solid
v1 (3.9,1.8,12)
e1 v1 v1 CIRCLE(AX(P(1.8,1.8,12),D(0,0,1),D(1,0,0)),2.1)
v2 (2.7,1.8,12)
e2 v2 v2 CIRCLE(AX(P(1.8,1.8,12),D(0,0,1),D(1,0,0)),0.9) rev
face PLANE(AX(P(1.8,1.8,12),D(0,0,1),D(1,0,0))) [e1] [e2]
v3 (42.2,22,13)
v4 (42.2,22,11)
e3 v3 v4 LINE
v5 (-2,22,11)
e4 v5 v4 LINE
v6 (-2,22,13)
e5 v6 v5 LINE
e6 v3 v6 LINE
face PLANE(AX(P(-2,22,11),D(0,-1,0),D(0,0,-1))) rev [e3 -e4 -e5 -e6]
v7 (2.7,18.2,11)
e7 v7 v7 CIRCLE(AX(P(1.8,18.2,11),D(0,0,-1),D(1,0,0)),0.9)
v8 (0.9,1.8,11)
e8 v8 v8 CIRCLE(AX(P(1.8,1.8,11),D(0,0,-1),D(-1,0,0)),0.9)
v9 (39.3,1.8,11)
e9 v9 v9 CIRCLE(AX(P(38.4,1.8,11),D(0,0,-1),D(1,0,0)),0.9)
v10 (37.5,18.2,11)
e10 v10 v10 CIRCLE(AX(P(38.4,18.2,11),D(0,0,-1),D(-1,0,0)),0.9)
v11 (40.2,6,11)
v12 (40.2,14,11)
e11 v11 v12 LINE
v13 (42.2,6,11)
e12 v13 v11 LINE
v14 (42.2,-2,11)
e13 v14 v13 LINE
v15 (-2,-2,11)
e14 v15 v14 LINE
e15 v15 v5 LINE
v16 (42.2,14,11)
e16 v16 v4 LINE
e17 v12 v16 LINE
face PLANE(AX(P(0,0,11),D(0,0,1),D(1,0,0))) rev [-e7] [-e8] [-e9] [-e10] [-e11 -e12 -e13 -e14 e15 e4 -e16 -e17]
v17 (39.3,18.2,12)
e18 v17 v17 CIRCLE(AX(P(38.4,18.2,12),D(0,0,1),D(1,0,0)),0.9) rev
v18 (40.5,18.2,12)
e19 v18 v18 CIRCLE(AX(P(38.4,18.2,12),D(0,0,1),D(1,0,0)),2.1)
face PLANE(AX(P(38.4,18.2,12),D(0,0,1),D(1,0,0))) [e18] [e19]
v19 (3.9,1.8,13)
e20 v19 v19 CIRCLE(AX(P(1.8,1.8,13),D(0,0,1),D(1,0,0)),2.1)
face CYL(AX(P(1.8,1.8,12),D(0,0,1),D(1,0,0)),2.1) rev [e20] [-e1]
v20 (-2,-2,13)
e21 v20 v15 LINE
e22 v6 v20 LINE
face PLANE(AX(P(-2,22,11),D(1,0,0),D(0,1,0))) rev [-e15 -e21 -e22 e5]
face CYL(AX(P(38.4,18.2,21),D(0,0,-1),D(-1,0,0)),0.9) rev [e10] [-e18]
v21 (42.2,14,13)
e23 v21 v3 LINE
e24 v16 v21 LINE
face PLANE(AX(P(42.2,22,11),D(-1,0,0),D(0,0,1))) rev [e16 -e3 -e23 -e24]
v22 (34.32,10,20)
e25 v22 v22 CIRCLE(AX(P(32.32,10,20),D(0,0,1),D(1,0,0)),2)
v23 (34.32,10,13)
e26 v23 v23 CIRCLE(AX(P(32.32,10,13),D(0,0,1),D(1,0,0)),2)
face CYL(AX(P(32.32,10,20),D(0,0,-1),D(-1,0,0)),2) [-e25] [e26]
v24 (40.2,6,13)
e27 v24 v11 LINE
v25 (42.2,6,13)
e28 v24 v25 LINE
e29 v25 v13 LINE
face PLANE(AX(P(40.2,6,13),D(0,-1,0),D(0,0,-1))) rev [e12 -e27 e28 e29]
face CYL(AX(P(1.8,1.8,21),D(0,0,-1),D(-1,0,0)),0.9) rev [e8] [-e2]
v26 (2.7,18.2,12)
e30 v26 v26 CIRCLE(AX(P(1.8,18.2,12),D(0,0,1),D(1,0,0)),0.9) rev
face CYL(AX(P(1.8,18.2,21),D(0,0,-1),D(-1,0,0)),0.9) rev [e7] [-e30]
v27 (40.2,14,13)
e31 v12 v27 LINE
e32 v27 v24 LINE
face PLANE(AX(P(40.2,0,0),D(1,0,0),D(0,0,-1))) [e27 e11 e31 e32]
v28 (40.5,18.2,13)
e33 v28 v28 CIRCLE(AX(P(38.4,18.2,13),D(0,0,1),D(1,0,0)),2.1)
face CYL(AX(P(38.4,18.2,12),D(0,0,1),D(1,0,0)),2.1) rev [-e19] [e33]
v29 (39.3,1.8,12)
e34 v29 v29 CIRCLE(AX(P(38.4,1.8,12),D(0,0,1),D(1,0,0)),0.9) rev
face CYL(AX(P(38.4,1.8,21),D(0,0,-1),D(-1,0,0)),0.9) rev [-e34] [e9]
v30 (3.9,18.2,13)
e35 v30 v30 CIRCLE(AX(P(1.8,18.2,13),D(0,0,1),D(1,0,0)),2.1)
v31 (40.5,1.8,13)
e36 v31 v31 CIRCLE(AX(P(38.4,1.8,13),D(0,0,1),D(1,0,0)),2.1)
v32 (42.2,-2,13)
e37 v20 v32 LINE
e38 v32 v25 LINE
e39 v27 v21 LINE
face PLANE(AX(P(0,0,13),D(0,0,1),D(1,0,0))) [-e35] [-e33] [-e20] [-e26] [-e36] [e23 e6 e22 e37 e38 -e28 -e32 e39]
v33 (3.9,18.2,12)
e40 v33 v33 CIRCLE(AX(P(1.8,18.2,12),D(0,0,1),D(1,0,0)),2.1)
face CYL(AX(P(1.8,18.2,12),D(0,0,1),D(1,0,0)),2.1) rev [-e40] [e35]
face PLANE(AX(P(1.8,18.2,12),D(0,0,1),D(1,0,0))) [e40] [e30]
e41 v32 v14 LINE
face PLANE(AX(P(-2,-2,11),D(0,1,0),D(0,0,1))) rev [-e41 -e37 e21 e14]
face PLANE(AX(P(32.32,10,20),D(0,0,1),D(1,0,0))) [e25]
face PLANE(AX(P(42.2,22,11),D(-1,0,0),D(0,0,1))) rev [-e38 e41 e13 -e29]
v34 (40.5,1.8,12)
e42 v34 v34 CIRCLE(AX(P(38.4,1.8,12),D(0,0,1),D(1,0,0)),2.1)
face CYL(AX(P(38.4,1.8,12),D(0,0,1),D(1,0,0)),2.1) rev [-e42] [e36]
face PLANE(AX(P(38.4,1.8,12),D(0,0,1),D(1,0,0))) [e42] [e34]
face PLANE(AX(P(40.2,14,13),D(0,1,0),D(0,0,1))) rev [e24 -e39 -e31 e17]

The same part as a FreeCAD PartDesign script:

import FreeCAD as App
import Part
import Sketcher
from FreeCAD import Vector

doc = App.newDocument("Part")
body = doc.addObject("PartDesign::Body", "Body")

# Sketch on XY plane
sketch1 = doc.addObject("Sketcher::SketchObject", "Sketch")
body.addObject(sketch1)
sketch1.AttachmentSupport = (doc.XY_Plane, [""])
sketch1.MapMode = "FlatFace"
sketch1.addGeometry([
    Part.LineSegment(Vector(-2, 22, 0), Vector(-2, -2, 0)),  # 0
    Part.LineSegment(Vector(-2, -2, 0), Vector(42, -2, 0)),  # 1
    Part.LineSegment(Vector(42, -2, 0), Vector(42, 22, 0)),  # 2
    Part.LineSegment(Vector(42, 22, 0), Vector(-2, 22, 0)),  # 3
    Part.LineSegment(Vector(40, 0, 0), Vector(0, 0, 0)),  # 4
    Part.LineSegment(Vector(0, 0, 0), Vector(0, 20, 0)),  # 5
    Part.LineSegment(Vector(0, 20, 0), Vector(40, 20, 0)),  # 6
    Part.LineSegment(Vector(40, 20, 0), Vector(40, 0, 0)),  # 7
], False)
sketch1.addConstraint([
    Sketcher.Constraint("Coincident", 0, 2, 1, 1),
    Sketcher.Constraint("Coincident", 1, 2, 2, 1),
    Sketcher.Constraint("Coincident", 2, 2, 3, 1),
    Sketcher.Constraint("Coincident", 3, 2, 0, 1),
    Sketcher.Constraint("Coincident", 4, 2, 5, 1),
    Sketcher.Constraint("Coincident", 5, 2, 6, 1),
    Sketcher.Constraint("Coincident", 6, 2, 7, 1),
    Sketcher.Constraint("Coincident", 7, 2, 4, 1),
    Sketcher.Constraint("Vertical", 0),
    Sketcher.Constraint("Horizontal", 1),
    Sketcher.Constraint("Vertical", 2),
    Sketcher.Constraint("Horizontal", 3),
    Sketcher.Constraint("Horizontal", 4),
    Sketcher.Constraint("Vertical", 5),
    Sketcher.Constraint("Horizontal", 6),
    Sketcher.Constraint("Vertical", 7),
    Sketcher.Constraint("Coincident", 4, 2, -1, 1),
    Sketcher.Constraint("DistanceY", 0, 2, 0, 1, 24.0),
    Sketcher.Constraint("DistanceY", 5, 1, 5, 2, 20.0),
    Sketcher.Constraint("DistanceX", 1, 1, 1, 2, 44.2),
    Sketcher.Constraint("DistanceX", 4, 2, 4, 1, 40.2),
    Sketcher.Constraint("DistanceX", 0, 2, -1, 1, 2.0),
    Sketcher.Constraint("DistanceY", 0, 2, -1, 1, 2.0),
])
pad1 = doc.addObject("PartDesign::Pad", "Pad")
body.addObject(pad1)
pad1.Profile = sketch1
pad1.Length = 11

# Sketch on XY plane
sketch2 = doc.addObject("Sketcher::SketchObject", "Sketch001")
body.addObject(sketch2)
sketch2.AttachmentSupport = (doc.XY_Plane, [""])
sketch2.MapMode = "FlatFace"
sketch2.AttachmentOffset = App.Placement(Vector(0, 0, 11), App.Rotation())
sketch2.addGeometry([
    Part.LineSegment(Vector(-2, 22, 0), Vector(-2, -2, 0)),
    Part.LineSegment(Vector(-2, -2, 0), Vector(42, -2, 0)),
    Part.LineSegment(Vector(42, -2, 0), Vector(42, 22, 0)),
    Part.LineSegment(Vector(42, 22, 0), Vector(-2, 22, 0)),
], False)
sketch2.addConstraint([
    Sketcher.Constraint("Coincident", 0, 2, 1, 1),
    Sketcher.Constraint("Coincident", 1, 2, 2, 1),
    Sketcher.Constraint("Coincident", 2, 2, 3, 1),
    Sketcher.Constraint("Coincident", 3, 2, 0, 1),
    Sketcher.Constraint("Vertical", 0),
    Sketcher.Constraint("Horizontal", 1),
    Sketcher.Constraint("Vertical", 2),
    Sketcher.Constraint("Horizontal", 3),
    Sketcher.Constraint("DistanceY", 0, 2, 0, 1, 24.0),
    Sketcher.Constraint("DistanceX", 1, 1, 1, 2, 44.2),
    Sketcher.Constraint("DistanceX", 0, 2, -1, 1, 2.0),
    Sketcher.Constraint("DistanceY", 0, 2, -1, 1, 2.0),
])
pad2 = doc.addObject("PartDesign::Pad", "Pad001")
body.addObject(pad2)
pad2.Profile = sketch2
pad2.Length = 2

# Sketch on YZ plane
sketch3 = doc.addObject("Sketcher::SketchObject", "Sketch002")
body.addObject(sketch3)
sketch3.AttachmentSupport = (doc.YZ_Plane, [""])
sketch3.MapMode = "FlatFace"
sketch3.AttachmentOffset = App.Placement(Vector(0, 0, 42.2), App.Rotation())
sketch3.addGeometry([
    Part.LineSegment(Vector(14, 13, 0), Vector(6, 13, 0)),
    Part.LineSegment(Vector(6, 13, 0), Vector(6, 2, 0)),
    Part.LineSegment(Vector(6, 2, 0), Vector(14, 2, 0)),
    Part.LineSegment(Vector(14, 2, 0), Vector(14, 13, 0)),
], False)
sketch3.addConstraint([
    Sketcher.Constraint("Coincident", 0, 2, 1, 1),
    Sketcher.Constraint("Coincident", 1, 2, 2, 1),
    Sketcher.Constraint("Coincident", 2, 2, 3, 1),
    Sketcher.Constraint("Coincident", 3, 2, 0, 1),
    Sketcher.Constraint("Horizontal", 0),
    Sketcher.Constraint("Vertical", 1),
    Sketcher.Constraint("Horizontal", 2),
    Sketcher.Constraint("Vertical", 3),
    Sketcher.Constraint("DistanceX", 0, 2, 0, 1, 8.0),
    Sketcher.Constraint("DistanceY", 1, 2, 1, 1, 11.0),
    Sketcher.Constraint("DistanceX", -1, 1, 0, 2, 6.0),
    Sketcher.Constraint("DistanceY", -1, 1, 0, 2, 13.0),
])
pocket1 = doc.addObject("PartDesign::Pocket", "Pocket")
body.addObject(pocket1)
pocket1.Profile = sketch3
pocket1.Length = 2

# Sketch on XY plane
sketch4 = doc.addObject("Sketcher::SketchObject", "Sketch003")
body.addObject(sketch4)
sketch4.AttachmentSupport = (doc.XY_Plane, [""])
sketch4.MapMode = "FlatFace"
sketch4.AttachmentOffset = App.Placement(Vector(0, 0, 13), App.Rotation())
sketch4.addGeometry(Part.Circle(Vector(32.3, 10, 0), Vector(0, 0, 1), 2), False)
sketch4.addConstraint([
    Sketcher.Constraint("Diameter", 0, 4.0),
    Sketcher.Constraint("DistanceY", -1, 1, 0, 3, 10.0),
    Sketcher.Constraint("DistanceX", -1, 1, 0, 3, 32.32),
])
pad3 = doc.addObject("PartDesign::Pad", "Pad002")
body.addObject(pad3)
pad3.Profile = sketch4
pad3.Length = 7

# Sketch on XY plane
sketch5 = doc.addObject("Sketcher::SketchObject", "Sketch004")
body.addObject(sketch5)
sketch5.AttachmentSupport = (doc.XY_Plane, [""])
sketch5.MapMode = "FlatFace"
sketch5.AttachmentOffset = App.Placement(Vector(0, 0, 11), App.Rotation())
sketch5.addGeometry([
    Part.Circle(Vector(38.4, 18.2, 0), Vector(0, 0, 1), 0.9),
    Part.Circle(Vector(1.8, 18.2, 0), Vector(0, 0, 1), 0.9),
    Part.Circle(Vector(1.8, 1.8, 0), Vector(0, 0, 1), 0.9),
    Part.Circle(Vector(38.4, 1.8, 0), Vector(0, 0, 1), 0.9),
], False)
sketch5.addConstraint([
    Sketcher.Constraint("Equal", 0, 1),
    Sketcher.Constraint("Equal", 1, 2),
    Sketcher.Constraint("Equal", 2, 3),
    Sketcher.Constraint("Horizontal", 0, 3, 1, 3),
    Sketcher.Constraint("Horizontal", 2, 3, 3, 3),
    Sketcher.Constraint("Vertical", 1, 3, 2, 3),
    Sketcher.Constraint("Vertical", 0, 3, 3, 3),
    Sketcher.Constraint("Diameter", 0, 1.8),
    Sketcher.Constraint("DistanceX", -1, 1, 0, 3, 38.4),
    Sketcher.Constraint("DistanceY", -1, 1, 0, 3, 18.2),
    Sketcher.Constraint("DistanceX", -1, 1, 1, 3, 1.8),
    Sketcher.Constraint("DistanceY", -1, 1, 2, 3, 1.8),
])
pocket2 = doc.addObject("PartDesign::Pocket", "Pocket001")
body.addObject(pocket2)
pocket2.Profile = sketch5
pocket2.Length = 10
pocket2.Reversed = True

# Sketch on XZ plane
sketch6 = doc.addObject("Sketcher::SketchObject", "Sketch005")
body.addObject(sketch6)
sketch6.AttachmentSupport = (doc.XZ_Plane, [""])
sketch6.MapMode = "FlatFace"
sketch6.AttachmentOffset = App.Placement(Vector(0, 0, -22), App.Rotation())
sketch6.addGeometry([
    Part.LineSegment(Vector(-2, 0, 0), Vector(-2, 11, 0)),
    Part.LineSegment(Vector(-2, 11, 0), Vector(42, 11, 0)),
    Part.LineSegment(Vector(42, 11, 0), Vector(42, 0, 0)),
    Part.LineSegment(Vector(42, 0, 0), Vector(-2, 0, 0)),
], False)
sketch6.addConstraint([
    Sketcher.Constraint("Coincident", 0, 2, 1, 1),
    Sketcher.Constraint("Coincident", 1, 2, 2, 1),
    Sketcher.Constraint("Coincident", 2, 2, 3, 1),
    Sketcher.Constraint("Coincident", 3, 2, 0, 1),
    Sketcher.Constraint("Vertical", 0),
    Sketcher.Constraint("Horizontal", 1),
    Sketcher.Constraint("Vertical", 2),
    Sketcher.Constraint("Horizontal", 3),
    Sketcher.Constraint("PointOnObject", 2, 2, -1),
    Sketcher.Constraint("DistanceY", 0, 1, 0, 2, 11.0),
    Sketcher.Constraint("DistanceX", 1, 1, 1, 2, 44.2),
    Sketcher.Constraint("DistanceX", 0, 2, -1, 1, 2.0),
])
pocket3 = doc.addObject("PartDesign::Pocket", "Pocket002")
body.addObject(pocket3)
pocket3.Profile = sketch6
pocket3.Length = 100
pocket3.Reversed = True

# Sketch on XY plane
sketch7 = doc.addObject("Sketcher::SketchObject", "Sketch006")
body.addObject(sketch7)
sketch7.AttachmentSupport = (doc.XY_Plane, [""])
sketch7.MapMode = "FlatFace"
sketch7.AttachmentOffset = App.Placement(Vector(0, 0, 13), App.Rotation())
sketch7.addGeometry([
    Part.Circle(Vector(1.8, 18.2, 0), Vector(0, 0, 1), 2.1),
    Part.Circle(Vector(38.4, 18.2, 0), Vector(0, 0, 1), 2.1),
    Part.Circle(Vector(38.4, 1.8, 0), Vector(0, 0, 1), 2.1),
    Part.Circle(Vector(1.8, 1.8, 0), Vector(0, 0, 1), 2.1),
], False)
sketch7.addConstraint([
    Sketcher.Constraint("Equal", 0, 1),
    Sketcher.Constraint("Equal", 1, 2),
    Sketcher.Constraint("Equal", 2, 3),
    Sketcher.Constraint("Horizontal", 0, 3, 1, 3),
    Sketcher.Constraint("Horizontal", 2, 3, 3, 3),
    Sketcher.Constraint("Vertical", 1, 3, 2, 3),
    Sketcher.Constraint("Vertical", 0, 3, 3, 3),
    Sketcher.Constraint("Diameter", 0, 4.2),
    Sketcher.Constraint("DistanceX", -1, 1, 0, 3, 1.8),
    Sketcher.Constraint("DistanceY", -1, 1, 0, 3, 18.2),
    Sketcher.Constraint("DistanceX", -1, 1, 1, 3, 38.4),
    Sketcher.Constraint("DistanceY", -1, 1, 2, 3, 1.8),
])
pocket4 = doc.addObject("PartDesign::Pocket", "Pocket003")
body.addObject(pocket4)
pocket4.Profile = sketch7
pocket4.Length = 1

doc.recompute()
